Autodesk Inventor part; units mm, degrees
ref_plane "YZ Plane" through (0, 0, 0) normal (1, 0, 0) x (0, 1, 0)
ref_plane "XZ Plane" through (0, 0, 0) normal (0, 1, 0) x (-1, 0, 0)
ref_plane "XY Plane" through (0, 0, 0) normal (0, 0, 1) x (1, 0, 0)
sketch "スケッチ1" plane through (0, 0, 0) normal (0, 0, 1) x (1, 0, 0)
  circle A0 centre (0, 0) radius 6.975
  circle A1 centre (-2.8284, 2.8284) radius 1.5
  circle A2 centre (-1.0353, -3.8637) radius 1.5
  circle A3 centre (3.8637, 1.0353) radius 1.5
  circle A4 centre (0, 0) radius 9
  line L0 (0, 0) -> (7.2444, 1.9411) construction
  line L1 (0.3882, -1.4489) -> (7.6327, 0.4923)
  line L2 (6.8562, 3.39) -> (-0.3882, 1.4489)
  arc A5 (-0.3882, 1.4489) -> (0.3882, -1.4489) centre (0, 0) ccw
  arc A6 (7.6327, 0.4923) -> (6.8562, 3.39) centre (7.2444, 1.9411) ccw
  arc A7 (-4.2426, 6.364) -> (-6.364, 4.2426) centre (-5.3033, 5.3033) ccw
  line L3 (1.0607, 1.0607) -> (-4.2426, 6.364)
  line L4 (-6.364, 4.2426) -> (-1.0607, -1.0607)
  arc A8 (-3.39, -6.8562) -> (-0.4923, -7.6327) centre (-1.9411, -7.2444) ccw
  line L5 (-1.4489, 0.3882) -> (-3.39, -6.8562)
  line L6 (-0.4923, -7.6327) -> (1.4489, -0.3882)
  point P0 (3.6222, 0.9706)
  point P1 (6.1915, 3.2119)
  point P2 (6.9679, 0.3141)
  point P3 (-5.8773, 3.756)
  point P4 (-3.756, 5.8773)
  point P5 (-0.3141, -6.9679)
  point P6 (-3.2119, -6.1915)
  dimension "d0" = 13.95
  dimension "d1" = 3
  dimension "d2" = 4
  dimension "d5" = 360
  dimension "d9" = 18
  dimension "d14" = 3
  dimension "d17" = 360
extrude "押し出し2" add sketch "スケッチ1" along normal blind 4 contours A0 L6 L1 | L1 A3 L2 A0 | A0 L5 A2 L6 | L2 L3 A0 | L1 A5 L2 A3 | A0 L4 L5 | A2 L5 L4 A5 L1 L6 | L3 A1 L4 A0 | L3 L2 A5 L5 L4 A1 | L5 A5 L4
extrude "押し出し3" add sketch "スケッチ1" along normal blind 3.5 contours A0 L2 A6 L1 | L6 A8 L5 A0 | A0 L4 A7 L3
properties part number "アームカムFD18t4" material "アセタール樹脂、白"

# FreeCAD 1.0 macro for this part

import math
import FreeCAD as App
import Part
import Sketcher

V = App.Vector
Q = App.Units.Quantity

doc = App.newDocument("Part")
body = doc.addObject("PartDesign::Body", "Body")

sketch1 = body.newObject("Sketcher::SketchObject", "Sketch")
sketch1.AttachmentSupport = (doc.getObject("XY_Plane"), [""])
sketch1.MapMode = "FlatFace"
sketch1.addGeometry(Part.Circle(V(0, 0, 0), V(0, 0, 1), 7), False)
sketch1.addGeometry(Part.Circle(V(-1, -3.9, 0), V(0, 0, 1), 1.5), False)
sketch1.addGeometry(Part.Circle(V(3.9, 1, 0), V(0, 0, 1), 1.5), False)
sketch1.addGeometry(Part.Circle(V(-2.8, 2.8, 0), V(0, 0, 1), 1.5), False)
sketch1.addConstraint(Sketcher.Constraint("Coincident", 0, 3, -1, 1))
sketch1.addConstraint(Sketcher.Constraint("Equal", 1, 2))
sketch1.addConstraint(Sketcher.Constraint("Equal", 2, 3))
sketch1.addConstraint(Sketcher.Constraint("Diameter", 1, Q("3 mm")))
sketch1.addConstraint(Sketcher.Constraint("Diameter", 0, Q("13.95 mm")))
sketch1.addConstraint(Sketcher.Constraint("DistanceX", 1, 3, 2, 3, Q("4.899 mm")))
sketch1.addConstraint(Sketcher.Constraint("DistanceY", 1, 3, 2, 3, Q("4.899 mm")))
sketch1.addConstraint(Sketcher.Constraint("DistanceX", 3, 3, 1, 3, Q("1.793 mm")))
sketch1.addConstraint(Sketcher.Constraint("DistanceY", 1, 3, 3, 3, Q("6.692 mm")))
sketch1.addConstraint(Sketcher.Constraint("DistanceX", 1, 3, -1, 1, Q("1.0353 mm")))
sketch1.addConstraint(Sketcher.Constraint("DistanceY", 1, 3, -1, 1, Q("3.8637 mm")))
pad1 = body.newObject("PartDesign::Pad", "Pad")
pad1.Profile = sketch1
pad1.Length = 4

sketch2 = body.newObject("Sketcher::SketchObject", "Sketch001")
sketch2.AttachmentSupport = (doc.getObject("XY_Plane"), [""])
sketch2.MapMode = "FlatFace"
sketch2.addGeometry(Part.ArcOfCircle(Part.Circle(V(0, 0, 0), V(0, 0, 1), 7), math.radians(3), math.radians(27)), False)
sketch2.addGeometry(Part.LineSegment(V(7, 0.3, 0), V(7.6, 0.5, 0)), False)
sketch2.addGeometry(Part.ArcOfCircle(Part.Circle(V(7.2, 1.9, 0), V(0, 0, 1), 1.5), math.radians(-75), math.radians(105)), False)
sketch2.addGeometry(Part.LineSegment(V(6.9, 3.4, 0), V(6.2, 3.2, 0)), False)
sketch2.addGeometry(Part.LineSegment(V(-0.5, -7.6, 0), V(-0.3, -7, 0)), False)
sketch2.addGeometry(Part.ArcOfCircle(Part.Circle(V(0, 0, 0), V(0, 0, 1), 7), math.radians(-117), math.radians(-93)), False)
sketch2.addGeometry(Part.LineSegment(V(-3.2, -6.2, 0), V(-3.4, -6.9, 0)), False)
sketch2.addGeometry(Part.ArcOfCircle(Part.Circle(V(-1.9, -7.2, 0), V(0, 0, 1), 1.5), math.radians(165), math.radians(345)), False)
sketch2.addGeometry(Part.ArcOfCircle(Part.Circle(V(0, 0, 0), V(0, 0, 1), 7), math.radians(123), math.radians(147)), False)
sketch2.addGeometry(Part.LineSegment(V(-3.8, 5.9, 0), V(-4.2, 6.4, 0)), False)
sketch2.addGeometry(Part.ArcOfCircle(Part.Circle(V(-5.3, 5.3, 0), V(0, 0, 1), 1.5), math.radians(45), math.radians(225)), False)
sketch2.addGeometry(Part.LineSegment(V(-6.4, 4.2, 0), V(-5.9, 3.8, 0)), False)
sketch2.addConstraint(Sketcher.Constraint("Coincident", 0, 1, 1, 1))
sketch2.addConstraint(Sketcher.Constraint("Tangent", 1, 2, 2, 1))
sketch2.addConstraint(Sketcher.Constraint("Tangent", 2, 2, 3, 1))
sketch2.addConstraint(Sketcher.Constraint("Coincident", 3, 2, 0, 2))
sketch2.addConstraint(Sketcher.Constraint("Coincident", 4, 2, 5, 2))
sketch2.addConstraint(Sketcher.Constraint("Coincident", 5, 1, 6, 1))
sketch2.addConstraint(Sketcher.Constraint("Tangent", 6, 2, 7, 1))
sketch2.addConstraint(Sketcher.Constraint("Tangent", 7, 2, 4, 1))
sketch2.addConstraint(Sketcher.Constraint("Coincident", 8, 1, 9, 1))
sketch2.addConstraint(Sketcher.Constraint("Tangent", 9, 2, 10, 1))
sketch2.addConstraint(Sketcher.Constraint("Tangent", 10, 2, 11, 1))
sketch2.addConstraint(Sketcher.Constraint("Coincident", 11, 2, 8, 2))
sketch2.addConstraint(Sketcher.Constraint("Coincident", 0, 3, -1, 1))
sketch2.addConstraint(Sketcher.Constraint("Coincident", 5, 3, -1, 1))
sketch2.addConstraint(Sketcher.Constraint("Coincident", 8, 3, -1, 1))
sketch2.addConstraint(Sketcher.Constraint("Equal", 0, 5))
sketch2.addConstraint(Sketcher.Constraint("Equal", 2, 7))
sketch2.addConstraint(Sketcher.Constraint("Equal", 5, 8))
sketch2.addConstraint(Sketcher.Constraint("Equal", 7, 10))
sketch2.addConstraint(Sketcher.Constraint("Parallel", 1, 3))
sketch2.addConstraint(Sketcher.Constraint("Parallel", 4, 6))
sketch2.addConstraint(Sketcher.Constraint("Parallel", 9, 11))
sketch2.addConstraint(Sketcher.Constraint("Equal", 1, 3))
sketch2.addConstraint(Sketcher.Constraint("Equal", 3, 4))
sketch2.addConstraint(Sketcher.Constraint("Equal", 4, 6))
sketch2.addConstraint(Sketcher.Constraint("Equal", 6, 9))
sketch2.addConstraint(Sketcher.Constraint("Equal", 9, 11))
sketch2.addConstraint(Sketcher.Constraint("Radius", 2, Q("1.5 mm")))
sketch2.addConstraint(Sketcher.Constraint("Radius", 0, Q("6.975 mm")))
sketch2.addConstraint(Sketcher.Constraint("Angle", 1, Q("15.0003 deg")))
sketch2.addConstraint(Sketcher.Constraint("Angle", 4, Q("74.9997 deg")))
sketch2.addConstraint(Sketcher.Constraint("Angle", 9, Q("135 deg")))
sketch2.addConstraint(Sketcher.Constraint("DistanceY", -1, 1, 2, 2, Q("3.39 mm")))
pad2 = body.newObject("PartDesign::Pad", "Pad001")
pad2.Profile = sketch2
pad2.Length = 3.5

doc.recompute()
